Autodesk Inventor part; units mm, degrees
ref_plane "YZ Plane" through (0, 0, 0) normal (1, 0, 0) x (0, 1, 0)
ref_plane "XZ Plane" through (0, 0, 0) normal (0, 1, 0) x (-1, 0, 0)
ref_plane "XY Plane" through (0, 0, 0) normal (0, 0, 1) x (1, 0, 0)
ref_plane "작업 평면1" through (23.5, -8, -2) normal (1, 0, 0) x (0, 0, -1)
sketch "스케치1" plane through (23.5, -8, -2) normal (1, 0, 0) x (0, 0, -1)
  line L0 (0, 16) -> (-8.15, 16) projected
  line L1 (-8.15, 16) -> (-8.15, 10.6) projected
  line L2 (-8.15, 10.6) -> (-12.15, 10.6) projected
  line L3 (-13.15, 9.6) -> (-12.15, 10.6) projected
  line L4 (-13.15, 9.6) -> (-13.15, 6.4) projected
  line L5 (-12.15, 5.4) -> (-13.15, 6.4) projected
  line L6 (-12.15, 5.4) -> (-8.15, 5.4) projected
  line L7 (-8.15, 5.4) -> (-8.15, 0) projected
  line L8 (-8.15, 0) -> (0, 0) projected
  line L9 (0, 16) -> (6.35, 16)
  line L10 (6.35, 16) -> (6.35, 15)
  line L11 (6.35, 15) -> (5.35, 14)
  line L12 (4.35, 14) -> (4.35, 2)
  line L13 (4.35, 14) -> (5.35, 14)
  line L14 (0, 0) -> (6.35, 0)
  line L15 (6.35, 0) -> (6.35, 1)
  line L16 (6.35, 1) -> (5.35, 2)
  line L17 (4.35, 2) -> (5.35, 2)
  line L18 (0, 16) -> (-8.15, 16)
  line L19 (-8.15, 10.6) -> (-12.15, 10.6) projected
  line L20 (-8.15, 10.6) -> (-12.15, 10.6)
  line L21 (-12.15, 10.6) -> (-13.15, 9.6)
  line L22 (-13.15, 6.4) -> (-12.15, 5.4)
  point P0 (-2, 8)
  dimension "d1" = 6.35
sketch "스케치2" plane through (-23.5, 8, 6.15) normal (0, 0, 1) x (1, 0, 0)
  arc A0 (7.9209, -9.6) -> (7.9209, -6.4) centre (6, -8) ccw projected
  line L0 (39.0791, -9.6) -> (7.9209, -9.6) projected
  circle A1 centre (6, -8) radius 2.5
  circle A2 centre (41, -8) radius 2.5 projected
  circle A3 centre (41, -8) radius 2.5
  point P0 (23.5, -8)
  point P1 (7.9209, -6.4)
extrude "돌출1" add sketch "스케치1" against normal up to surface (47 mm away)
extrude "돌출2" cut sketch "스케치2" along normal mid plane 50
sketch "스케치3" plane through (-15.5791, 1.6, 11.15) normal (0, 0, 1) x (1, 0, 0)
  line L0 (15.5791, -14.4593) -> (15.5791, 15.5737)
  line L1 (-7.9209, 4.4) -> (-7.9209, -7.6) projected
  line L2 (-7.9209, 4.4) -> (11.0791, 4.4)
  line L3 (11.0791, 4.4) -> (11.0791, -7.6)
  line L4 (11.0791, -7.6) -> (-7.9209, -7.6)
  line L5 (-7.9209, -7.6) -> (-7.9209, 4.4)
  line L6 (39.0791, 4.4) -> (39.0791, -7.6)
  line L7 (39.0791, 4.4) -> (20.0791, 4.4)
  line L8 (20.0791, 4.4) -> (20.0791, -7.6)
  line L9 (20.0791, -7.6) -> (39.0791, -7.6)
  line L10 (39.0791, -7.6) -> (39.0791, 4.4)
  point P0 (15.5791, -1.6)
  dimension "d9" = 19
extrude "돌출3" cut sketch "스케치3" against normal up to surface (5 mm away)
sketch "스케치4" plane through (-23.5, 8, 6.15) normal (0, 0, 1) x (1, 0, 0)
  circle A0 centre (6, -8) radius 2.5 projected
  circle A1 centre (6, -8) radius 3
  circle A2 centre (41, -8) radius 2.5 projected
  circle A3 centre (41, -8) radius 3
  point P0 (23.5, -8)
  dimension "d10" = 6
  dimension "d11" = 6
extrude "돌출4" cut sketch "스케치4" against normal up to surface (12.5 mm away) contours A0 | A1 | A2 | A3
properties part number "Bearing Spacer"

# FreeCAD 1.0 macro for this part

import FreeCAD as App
import Part
import Sketcher
from FreeCAD import Vector

doc = App.newDocument("Part")
body = doc.addObject("PartDesign::Body", "Body")

sketch1 = body.newObject("Sketcher::SketchObject", "Sketch")
sketch1.AttachmentSupport = (doc.getObject("YZ_Plane"), [""])
sketch1.MapMode = "FlatFace"
sketch1.AttachmentOffset = App.Placement(Vector(0, 0, 23.5), App.Rotation())
sketch1.addGeometry([
    Part.LineSegment(Vector(8, -8.3, 0), Vector(8, 6.2, 0)),
    Part.LineSegment(Vector(8, 6.2, 0), Vector(2.6, 6.2, 0)),
    Part.LineSegment(Vector(2.6, 6.2, 0), Vector(2.6, 10.2, 0)),
    Part.LineSegment(Vector(2.6, 10.2, 0), Vector(1.6, 11.2, 0)),
    Part.LineSegment(Vector(1.6, 11.2, 0), Vector(-1.6, 11.2, 0)),
    Part.LineSegment(Vector(-1.6, 11.2, 0), Vector(-2.6, 10.2, 0)),
    Part.LineSegment(Vector(-2.6, 10.2, 0), Vector(-2.6, 6.2, 0)),
    Part.LineSegment(Vector(-2.6, 6.2, 0), Vector(-8, 6.2, 0)),
    Part.LineSegment(Vector(-8, 6.2, 0), Vector(-8, -8.3, 0)),
    Part.LineSegment(Vector(-8, -8.3, 0), Vector(-7, -8.3, 0)),
    Part.LineSegment(Vector(-7, -8.3, 0), Vector(-6, -7.3, 0)),
    Part.LineSegment(Vector(-6, -7.3, 0), Vector(-6, -6.3, 0)),
    Part.LineSegment(Vector(-6, -6.3, 0), Vector(6, -6.3, 0)),
    Part.LineSegment(Vector(6, -6.3, 0), Vector(6, -7.3, 0)),
    Part.LineSegment(Vector(6, -7.3, 0), Vector(7, -8.3, 0)),
    Part.LineSegment(Vector(7, -8.3, 0), Vector(8, -8.3, 0)),
], False)
sketch1.addConstraint([
    Sketcher.Constraint("Coincident", 0, 2, 1, 1),
    Sketcher.Constraint("Coincident", 1, 2, 2, 1),
    Sketcher.Constraint("Coincident", 2, 2, 3, 1),
    Sketcher.Constraint("Coincident", 3, 2, 4, 1),
    Sketcher.Constraint("Coincident", 4, 2, 5, 1),
    Sketcher.Constraint("Coincident", 5, 2, 6, 1),
    Sketcher.Constraint("Coincident", 6, 2, 7, 1),
    Sketcher.Constraint("Coincident", 7, 2, 8, 1),
    Sketcher.Constraint("Coincident", 8, 2, 9, 1),
    Sketcher.Constraint("Coincident", 9, 2, 10, 1),
    Sketcher.Constraint("Coincident", 10, 2, 11, 1),
    Sketcher.Constraint("Coincident", 11, 2, 12, 1),
    Sketcher.Constraint("Coincident", 12, 2, 13, 1),
    Sketcher.Constraint("Coincident", 13, 2, 14, 1),
    Sketcher.Constraint("Coincident", 14, 2, 15, 1),
    Sketcher.Constraint("Coincident", 15, 2, 0, 1),
    Sketcher.Constraint("Vertical", 0),
    Sketcher.Constraint("Horizontal", 1),
    Sketcher.Constraint("Vertical", 2),
    Sketcher.Constraint("Horizontal", 4),
    Sketcher.Constraint("Vertical", 6),
    Sketcher.Constraint("Horizontal", 7),
    Sketcher.Constraint("Vertical", 8),
    Sketcher.Constraint("Horizontal", 9),
    Sketcher.Constraint("Vertical", 11),
    Sketcher.Constraint("Horizontal", 12),
    Sketcher.Constraint("Vertical", 13),
    Sketcher.Constraint("Horizontal", 15),
    Sketcher.Constraint("Symmetric", 2, 2, 5, 2, -2),
    Sketcher.Constraint("Symmetric", 0, 2, 7, 2, -2),
    Sketcher.Constraint("Symmetric", 10, 2, 13, 2, -2),
    Sketcher.Constraint("Symmetric", 9, 2, 14, 2, -2),
    Sketcher.Constraint("Perpendicular", 3, 5),
    Sketcher.Constraint("Parallel", 5, 10),
    Sketcher.Constraint("Perpendicular", 10, 14),
    Sketcher.Constraint("Equal", 15, 11),
    Sketcher.Constraint("Equal", 5, 10),
    Sketcher.Constraint("DistanceX", 9, 1, 9, 2, 1.0),
    Sketcher.Constraint("DistanceX", 12, 1, 12, 2, 12.0),
    Sketcher.Constraint("DistanceY", 2, 1, 2, 2, 4.0),
    Sketcher.Constraint("DistanceY", 11, 2, -1, 1, 6.35),
    Sketcher.Constraint("DistanceX", 1, 2, 1, 1, 5.4),
    Sketcher.Constraint("DistanceY", 0, 1, 0, 2, 14.5),
    Sketcher.Constraint("DistanceX", -1, 1, 0, 2, 8.0),
])
pad1 = body.newObject("PartDesign::Pad", "Pad")
pad1.Profile = sketch1
pad1.Length = 47
pad1.Reversed = True

sketch2 = body.newObject("Sketcher::SketchObject", "Sketch001")
sketch2.AttachmentSupport = (doc.getObject("XY_Plane"), [""])
sketch2.MapMode = "FlatFace"
sketch2.AttachmentOffset = App.Placement(Vector(0, 0, 6.15), App.Rotation())
sketch2.addGeometry([
    Part.Circle(Vector(-17.5, 0, 0), Vector(0, 0, 1), 2.5),
    Part.Circle(Vector(17.5, 0, 0), Vector(0, 0, 1), 2.5),
], False)
sketch2.addConstraint([
    Sketcher.Constraint("Equal", 0, 1),
    Sketcher.Constraint("Symmetric", 0, 3, 1, 3, -1, 1),
    Sketcher.Constraint("PointOnObject", 0, 3, -1),
    Sketcher.Constraint("Diameter", 0, 5.0),
    Sketcher.Constraint("DistanceX", 0, 3, 1, 3, 35.0),
])
pocket1 = body.newObject("PartDesign::Pocket", "Pocket")
pocket1.Profile = sketch2
pocket1.Length = 50
pocket1.Midplane = True

sketch3 = body.newObject("Sketcher::SketchObject", "Sketch002")
sketch3.AttachmentSupport = (doc.getObject("XY_Plane"), [""])
sketch3.MapMode = "FlatFace"
sketch3.AttachmentOffset = App.Placement(Vector(0, 0, 11.15), App.Rotation())
sketch3.addGeometry([
    Part.LineSegment(Vector(-4, 6, 0), Vector(-24, 6, 0)),
    Part.LineSegment(Vector(-24, 6, 0), Vector(-24, -6, 0)),
    Part.LineSegment(Vector(-24, -6, 0), Vector(-4, -6, 0)),
    Part.LineSegment(Vector(-4, -6, 0), Vector(-4, 6, 0)),
    Part.LineSegment(Vector(24, -6, 0), Vector(24, 6, 0)),
    Part.LineSegment(Vector(24, 6, 0), Vector(4, 6, 0)),
    Part.LineSegment(Vector(4, 6, 0), Vector(4, -6, 0)),
    Part.LineSegment(Vector(4, -6, 0), Vector(24, -6, 0)),
], False)
sketch3.addConstraint([
    Sketcher.Constraint("Coincident", 0, 2, 1, 1),
    Sketcher.Constraint("Coincident", 1, 2, 2, 1),
    Sketcher.Constraint("Coincident", 2, 2, 3, 1),
    Sketcher.Constraint("Coincident", 3, 2, 0, 1),
    Sketcher.Constraint("Coincident", 4, 2, 5, 1),
    Sketcher.Constraint("Coincident", 5, 2, 6, 1),
    Sketcher.Constraint("Coincident", 6, 2, 7, 1),
    Sketcher.Constraint("Coincident", 7, 2, 4, 1),
    Sketcher.Constraint("Horizontal", 0),
    Sketcher.Constraint("Vertical", 1),
    Sketcher.Constraint("Horizontal", 2),
    Sketcher.Constraint("Vertical", 3),
    Sketcher.Constraint("Vertical", 4),
    Sketcher.Constraint("Horizontal", 5),
    Sketcher.Constraint("Vertical", 6),
    Sketcher.Constraint("Horizontal", 7),
    Sketcher.Constraint("Symmetric", 1, 2, 4, 2, -1, 1),
    Sketcher.Constraint("Symmetric", 3, 2, 6, 2, -1, 1),
    Sketcher.Constraint("Horizontal", 3, 2, 4, 2),
    Sketcher.Constraint("DistanceX", 0, 2, 0, 1, 19.0),
    Sketcher.Constraint("DistanceY", 1, 2, 1, 1, 12.0),
    Sketcher.Constraint("DistanceX", 3, 2, 4, 2, 28.0),
])
pocket2 = body.newObject("PartDesign::Pocket", "Pocket001")
pocket2.Profile = sketch3
pocket2.Length = 5

sketch4 = body.newObject("Sketcher::SketchObject", "Sketch003")
sketch4.AttachmentSupport = (doc.getObject("XY_Plane"), [""])
sketch4.MapMode = "FlatFace"
sketch4.AttachmentOffset = App.Placement(Vector(0, 0, 6.15), App.Rotation())
sketch4.addGeometry([
    Part.Circle(Vector(-17.5, 0, 0), Vector(0, 0, 1), 3),
    Part.Circle(Vector(17.5, 0, 0), Vector(0, 0, 1), 3),
], False)
sketch4.addConstraint([
    Sketcher.Constraint("Equal", 0, 1),
    Sketcher.Constraint("Symmetric", 0, 3, 1, 3, -1, 1),
    Sketcher.Constraint("PointOnObject", 0, 3, -1),
    Sketcher.Constraint("Diameter", 0, 6.0),
    Sketcher.Constraint("DistanceX", 0, 3, 1, 3, 35.0),
])
pocket3 = body.newObject("PartDesign::Pocket", "Pocket002")
pocket3.Profile = sketch4
pocket3.Length = 12.5

doc.recompute()
